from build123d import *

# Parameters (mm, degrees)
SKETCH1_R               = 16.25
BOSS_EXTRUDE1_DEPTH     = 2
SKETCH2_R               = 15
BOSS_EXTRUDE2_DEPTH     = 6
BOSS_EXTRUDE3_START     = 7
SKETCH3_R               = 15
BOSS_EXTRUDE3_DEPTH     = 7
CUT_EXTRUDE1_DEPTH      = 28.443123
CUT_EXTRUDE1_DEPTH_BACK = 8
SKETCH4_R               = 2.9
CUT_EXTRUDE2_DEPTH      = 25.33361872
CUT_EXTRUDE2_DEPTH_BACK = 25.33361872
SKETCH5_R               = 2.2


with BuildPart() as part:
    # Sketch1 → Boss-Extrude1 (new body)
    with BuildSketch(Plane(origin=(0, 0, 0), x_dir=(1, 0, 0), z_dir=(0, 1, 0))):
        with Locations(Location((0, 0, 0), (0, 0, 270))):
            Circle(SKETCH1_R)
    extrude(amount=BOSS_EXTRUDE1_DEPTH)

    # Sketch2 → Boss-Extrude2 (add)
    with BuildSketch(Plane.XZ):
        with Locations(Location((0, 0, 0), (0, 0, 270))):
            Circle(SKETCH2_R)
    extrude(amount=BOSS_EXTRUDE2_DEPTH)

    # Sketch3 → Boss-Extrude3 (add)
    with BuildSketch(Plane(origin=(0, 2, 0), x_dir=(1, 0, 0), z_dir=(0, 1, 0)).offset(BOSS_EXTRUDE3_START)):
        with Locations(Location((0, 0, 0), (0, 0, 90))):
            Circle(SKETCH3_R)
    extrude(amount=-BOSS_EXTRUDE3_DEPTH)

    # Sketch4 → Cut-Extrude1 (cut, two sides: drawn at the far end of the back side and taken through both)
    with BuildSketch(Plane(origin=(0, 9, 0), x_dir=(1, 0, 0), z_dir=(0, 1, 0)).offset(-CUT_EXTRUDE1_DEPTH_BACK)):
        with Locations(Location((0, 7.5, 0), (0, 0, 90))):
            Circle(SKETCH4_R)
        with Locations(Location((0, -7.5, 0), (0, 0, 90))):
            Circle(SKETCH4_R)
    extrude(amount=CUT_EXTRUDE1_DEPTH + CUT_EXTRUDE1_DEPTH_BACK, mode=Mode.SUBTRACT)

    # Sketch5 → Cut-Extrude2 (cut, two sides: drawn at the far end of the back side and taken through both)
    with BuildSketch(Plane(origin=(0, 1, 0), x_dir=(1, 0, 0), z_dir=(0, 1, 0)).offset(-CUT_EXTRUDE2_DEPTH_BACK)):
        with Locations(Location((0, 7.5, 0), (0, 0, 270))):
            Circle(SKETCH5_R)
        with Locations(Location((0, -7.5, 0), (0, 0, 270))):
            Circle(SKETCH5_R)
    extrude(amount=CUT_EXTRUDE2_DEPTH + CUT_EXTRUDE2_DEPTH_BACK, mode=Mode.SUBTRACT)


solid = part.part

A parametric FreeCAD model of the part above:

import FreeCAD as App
import Part
import Sketcher
Q = App.Units.Quantity

doc = App.newDocument("Part")
body = doc.addObject("PartDesign::Body", "Body")

# Sketch on XZ plane
sketch1 = body.newObject("Sketcher::SketchObject", "Sketch")
sketch1.AttachmentSupport = (doc.getObject("XZ_Plane"), [""])
sketch1.MapMode = "FlatFace"
sketch1.addGeometry(Part.Circle(App.Vector(0, 0, 0), App.Vector(0, 0, 1), 16), False)
sketch1.addConstraint([
    Sketcher.Constraint("Coincident", 0, 3, -1, 1),
    Sketcher.Constraint("Diameter", 0, Q("32.5 mm")),
])
pad1 = body.newObject("PartDesign::Pad", "Pad")
pad1.Profile = sketch1
pad1.Length = 2
pad1.Reversed = True

# Sketch on XZ plane
sketch2 = body.newObject("Sketcher::SketchObject", "Sketch001")
sketch2.AttachmentSupport = (doc.getObject("XZ_Plane"), [""])
sketch2.MapMode = "FlatFace"
sketch2.addGeometry(Part.Circle(App.Vector(0, 0, 0), App.Vector(0, 0, 1), 15), False)
sketch2.addConstraint([
    Sketcher.Constraint("Coincident", 0, 3, -1, 1),
    Sketcher.Constraint("Diameter", 0, Q("30 mm")),
])
pad2 = body.newObject("PartDesign::Pad", "Pad001")
pad2.Profile = sketch2
pad2.Length = 6

# Sketch on XZ plane
sketch3 = body.newObject("Sketcher::SketchObject", "Sketch002")
sketch3.AttachmentSupport = (doc.getObject("XZ_Plane"), [""])
sketch3.MapMode = "FlatFace"
sketch3.AttachmentOffset = App.Placement(App.Vector(0, 0, -9), App.Rotation())
sketch3.addGeometry(Part.Circle(App.Vector(0, 0, 0), App.Vector(0, 0, 1), 15), False)
sketch3.addConstraint([
    Sketcher.Constraint("Coincident", 0, 3, -1, 1),
    Sketcher.Constraint("Diameter", 0, Q("30 mm")),
])
pad3 = body.newObject("PartDesign::Pad", "Pad002")
pad3.Profile = sketch3
pad3.Length = 7

# Sketch on XZ plane
sketch4 = body.newObject("Sketcher::SketchObject", "Sketch003")
sketch4.AttachmentSupport = (doc.getObject("XZ_Plane"), [""])
sketch4.MapMode = "FlatFace"
sketch4.AttachmentOffset = App.Placement(App.Vector(0, 0, -9), App.Rotation())
sketch4.addGeometry([
    Part.Circle(App.Vector(0, -7.5, 0), App.Vector(0, 0, 1), 2.9),
    Part.Circle(App.Vector(0, 7.5, 0), App.Vector(0, 0, 1), 2.9),
], False)
sketch4.addConstraint([
    Sketcher.Constraint("Equal", 0, 1),
    Sketcher.Constraint("Symmetric", 0, 3, 1, 3, -1, 1),
    Sketcher.Constraint("PointOnObject", 0, 3, -2),
    Sketcher.Constraint("Diameter", 0, Q("5.8 mm")),
    Sketcher.Constraint("DistanceY", 0, 3, 1, 3, Q("15 mm")),
])
pocket1 = body.newObject("PartDesign::Pocket", "Pocket")
pocket1.Profile = sketch4
pocket1.Type = "TwoLengths"
pocket1.Length = 28.443123
pocket1.Length2 = 8

# Sketch on XZ plane
sketch5 = body.newObject("Sketcher::SketchObject", "Sketch004")
sketch5.AttachmentSupport = (doc.getObject("XZ_Plane"), [""])
sketch5.MapMode = "FlatFace"
sketch5.AttachmentOffset = App.Placement(App.Vector(0, 0, -1), App.Rotation())
sketch5.addGeometry([
    Part.Circle(App.Vector(0, -7.5, 0), App.Vector(0, 0, 1), 2.2),
    Part.Circle(App.Vector(0, 7.5, 0), App.Vector(0, 0, 1), 2.2),
], False)
sketch5.addConstraint([
    Sketcher.Constraint("Equal", 0, 1),
    Sketcher.Constraint("Symmetric", 0, 3, 1, 3, -1, 1),
    Sketcher.Constraint("PointOnObject", 0, 3, -2),
    Sketcher.Constraint("Diameter", 0, Q("4.4 mm")),
    Sketcher.Constraint("DistanceY", 0, 3, 1, 3, Q("15 mm")),
])
pocket2 = body.newObject("PartDesign::Pocket", "Pocket001")
pocket2.Profile = sketch5
pocket2.Type = "ThroughAll"
pocket2.Midplane = True

doc.recompute()
